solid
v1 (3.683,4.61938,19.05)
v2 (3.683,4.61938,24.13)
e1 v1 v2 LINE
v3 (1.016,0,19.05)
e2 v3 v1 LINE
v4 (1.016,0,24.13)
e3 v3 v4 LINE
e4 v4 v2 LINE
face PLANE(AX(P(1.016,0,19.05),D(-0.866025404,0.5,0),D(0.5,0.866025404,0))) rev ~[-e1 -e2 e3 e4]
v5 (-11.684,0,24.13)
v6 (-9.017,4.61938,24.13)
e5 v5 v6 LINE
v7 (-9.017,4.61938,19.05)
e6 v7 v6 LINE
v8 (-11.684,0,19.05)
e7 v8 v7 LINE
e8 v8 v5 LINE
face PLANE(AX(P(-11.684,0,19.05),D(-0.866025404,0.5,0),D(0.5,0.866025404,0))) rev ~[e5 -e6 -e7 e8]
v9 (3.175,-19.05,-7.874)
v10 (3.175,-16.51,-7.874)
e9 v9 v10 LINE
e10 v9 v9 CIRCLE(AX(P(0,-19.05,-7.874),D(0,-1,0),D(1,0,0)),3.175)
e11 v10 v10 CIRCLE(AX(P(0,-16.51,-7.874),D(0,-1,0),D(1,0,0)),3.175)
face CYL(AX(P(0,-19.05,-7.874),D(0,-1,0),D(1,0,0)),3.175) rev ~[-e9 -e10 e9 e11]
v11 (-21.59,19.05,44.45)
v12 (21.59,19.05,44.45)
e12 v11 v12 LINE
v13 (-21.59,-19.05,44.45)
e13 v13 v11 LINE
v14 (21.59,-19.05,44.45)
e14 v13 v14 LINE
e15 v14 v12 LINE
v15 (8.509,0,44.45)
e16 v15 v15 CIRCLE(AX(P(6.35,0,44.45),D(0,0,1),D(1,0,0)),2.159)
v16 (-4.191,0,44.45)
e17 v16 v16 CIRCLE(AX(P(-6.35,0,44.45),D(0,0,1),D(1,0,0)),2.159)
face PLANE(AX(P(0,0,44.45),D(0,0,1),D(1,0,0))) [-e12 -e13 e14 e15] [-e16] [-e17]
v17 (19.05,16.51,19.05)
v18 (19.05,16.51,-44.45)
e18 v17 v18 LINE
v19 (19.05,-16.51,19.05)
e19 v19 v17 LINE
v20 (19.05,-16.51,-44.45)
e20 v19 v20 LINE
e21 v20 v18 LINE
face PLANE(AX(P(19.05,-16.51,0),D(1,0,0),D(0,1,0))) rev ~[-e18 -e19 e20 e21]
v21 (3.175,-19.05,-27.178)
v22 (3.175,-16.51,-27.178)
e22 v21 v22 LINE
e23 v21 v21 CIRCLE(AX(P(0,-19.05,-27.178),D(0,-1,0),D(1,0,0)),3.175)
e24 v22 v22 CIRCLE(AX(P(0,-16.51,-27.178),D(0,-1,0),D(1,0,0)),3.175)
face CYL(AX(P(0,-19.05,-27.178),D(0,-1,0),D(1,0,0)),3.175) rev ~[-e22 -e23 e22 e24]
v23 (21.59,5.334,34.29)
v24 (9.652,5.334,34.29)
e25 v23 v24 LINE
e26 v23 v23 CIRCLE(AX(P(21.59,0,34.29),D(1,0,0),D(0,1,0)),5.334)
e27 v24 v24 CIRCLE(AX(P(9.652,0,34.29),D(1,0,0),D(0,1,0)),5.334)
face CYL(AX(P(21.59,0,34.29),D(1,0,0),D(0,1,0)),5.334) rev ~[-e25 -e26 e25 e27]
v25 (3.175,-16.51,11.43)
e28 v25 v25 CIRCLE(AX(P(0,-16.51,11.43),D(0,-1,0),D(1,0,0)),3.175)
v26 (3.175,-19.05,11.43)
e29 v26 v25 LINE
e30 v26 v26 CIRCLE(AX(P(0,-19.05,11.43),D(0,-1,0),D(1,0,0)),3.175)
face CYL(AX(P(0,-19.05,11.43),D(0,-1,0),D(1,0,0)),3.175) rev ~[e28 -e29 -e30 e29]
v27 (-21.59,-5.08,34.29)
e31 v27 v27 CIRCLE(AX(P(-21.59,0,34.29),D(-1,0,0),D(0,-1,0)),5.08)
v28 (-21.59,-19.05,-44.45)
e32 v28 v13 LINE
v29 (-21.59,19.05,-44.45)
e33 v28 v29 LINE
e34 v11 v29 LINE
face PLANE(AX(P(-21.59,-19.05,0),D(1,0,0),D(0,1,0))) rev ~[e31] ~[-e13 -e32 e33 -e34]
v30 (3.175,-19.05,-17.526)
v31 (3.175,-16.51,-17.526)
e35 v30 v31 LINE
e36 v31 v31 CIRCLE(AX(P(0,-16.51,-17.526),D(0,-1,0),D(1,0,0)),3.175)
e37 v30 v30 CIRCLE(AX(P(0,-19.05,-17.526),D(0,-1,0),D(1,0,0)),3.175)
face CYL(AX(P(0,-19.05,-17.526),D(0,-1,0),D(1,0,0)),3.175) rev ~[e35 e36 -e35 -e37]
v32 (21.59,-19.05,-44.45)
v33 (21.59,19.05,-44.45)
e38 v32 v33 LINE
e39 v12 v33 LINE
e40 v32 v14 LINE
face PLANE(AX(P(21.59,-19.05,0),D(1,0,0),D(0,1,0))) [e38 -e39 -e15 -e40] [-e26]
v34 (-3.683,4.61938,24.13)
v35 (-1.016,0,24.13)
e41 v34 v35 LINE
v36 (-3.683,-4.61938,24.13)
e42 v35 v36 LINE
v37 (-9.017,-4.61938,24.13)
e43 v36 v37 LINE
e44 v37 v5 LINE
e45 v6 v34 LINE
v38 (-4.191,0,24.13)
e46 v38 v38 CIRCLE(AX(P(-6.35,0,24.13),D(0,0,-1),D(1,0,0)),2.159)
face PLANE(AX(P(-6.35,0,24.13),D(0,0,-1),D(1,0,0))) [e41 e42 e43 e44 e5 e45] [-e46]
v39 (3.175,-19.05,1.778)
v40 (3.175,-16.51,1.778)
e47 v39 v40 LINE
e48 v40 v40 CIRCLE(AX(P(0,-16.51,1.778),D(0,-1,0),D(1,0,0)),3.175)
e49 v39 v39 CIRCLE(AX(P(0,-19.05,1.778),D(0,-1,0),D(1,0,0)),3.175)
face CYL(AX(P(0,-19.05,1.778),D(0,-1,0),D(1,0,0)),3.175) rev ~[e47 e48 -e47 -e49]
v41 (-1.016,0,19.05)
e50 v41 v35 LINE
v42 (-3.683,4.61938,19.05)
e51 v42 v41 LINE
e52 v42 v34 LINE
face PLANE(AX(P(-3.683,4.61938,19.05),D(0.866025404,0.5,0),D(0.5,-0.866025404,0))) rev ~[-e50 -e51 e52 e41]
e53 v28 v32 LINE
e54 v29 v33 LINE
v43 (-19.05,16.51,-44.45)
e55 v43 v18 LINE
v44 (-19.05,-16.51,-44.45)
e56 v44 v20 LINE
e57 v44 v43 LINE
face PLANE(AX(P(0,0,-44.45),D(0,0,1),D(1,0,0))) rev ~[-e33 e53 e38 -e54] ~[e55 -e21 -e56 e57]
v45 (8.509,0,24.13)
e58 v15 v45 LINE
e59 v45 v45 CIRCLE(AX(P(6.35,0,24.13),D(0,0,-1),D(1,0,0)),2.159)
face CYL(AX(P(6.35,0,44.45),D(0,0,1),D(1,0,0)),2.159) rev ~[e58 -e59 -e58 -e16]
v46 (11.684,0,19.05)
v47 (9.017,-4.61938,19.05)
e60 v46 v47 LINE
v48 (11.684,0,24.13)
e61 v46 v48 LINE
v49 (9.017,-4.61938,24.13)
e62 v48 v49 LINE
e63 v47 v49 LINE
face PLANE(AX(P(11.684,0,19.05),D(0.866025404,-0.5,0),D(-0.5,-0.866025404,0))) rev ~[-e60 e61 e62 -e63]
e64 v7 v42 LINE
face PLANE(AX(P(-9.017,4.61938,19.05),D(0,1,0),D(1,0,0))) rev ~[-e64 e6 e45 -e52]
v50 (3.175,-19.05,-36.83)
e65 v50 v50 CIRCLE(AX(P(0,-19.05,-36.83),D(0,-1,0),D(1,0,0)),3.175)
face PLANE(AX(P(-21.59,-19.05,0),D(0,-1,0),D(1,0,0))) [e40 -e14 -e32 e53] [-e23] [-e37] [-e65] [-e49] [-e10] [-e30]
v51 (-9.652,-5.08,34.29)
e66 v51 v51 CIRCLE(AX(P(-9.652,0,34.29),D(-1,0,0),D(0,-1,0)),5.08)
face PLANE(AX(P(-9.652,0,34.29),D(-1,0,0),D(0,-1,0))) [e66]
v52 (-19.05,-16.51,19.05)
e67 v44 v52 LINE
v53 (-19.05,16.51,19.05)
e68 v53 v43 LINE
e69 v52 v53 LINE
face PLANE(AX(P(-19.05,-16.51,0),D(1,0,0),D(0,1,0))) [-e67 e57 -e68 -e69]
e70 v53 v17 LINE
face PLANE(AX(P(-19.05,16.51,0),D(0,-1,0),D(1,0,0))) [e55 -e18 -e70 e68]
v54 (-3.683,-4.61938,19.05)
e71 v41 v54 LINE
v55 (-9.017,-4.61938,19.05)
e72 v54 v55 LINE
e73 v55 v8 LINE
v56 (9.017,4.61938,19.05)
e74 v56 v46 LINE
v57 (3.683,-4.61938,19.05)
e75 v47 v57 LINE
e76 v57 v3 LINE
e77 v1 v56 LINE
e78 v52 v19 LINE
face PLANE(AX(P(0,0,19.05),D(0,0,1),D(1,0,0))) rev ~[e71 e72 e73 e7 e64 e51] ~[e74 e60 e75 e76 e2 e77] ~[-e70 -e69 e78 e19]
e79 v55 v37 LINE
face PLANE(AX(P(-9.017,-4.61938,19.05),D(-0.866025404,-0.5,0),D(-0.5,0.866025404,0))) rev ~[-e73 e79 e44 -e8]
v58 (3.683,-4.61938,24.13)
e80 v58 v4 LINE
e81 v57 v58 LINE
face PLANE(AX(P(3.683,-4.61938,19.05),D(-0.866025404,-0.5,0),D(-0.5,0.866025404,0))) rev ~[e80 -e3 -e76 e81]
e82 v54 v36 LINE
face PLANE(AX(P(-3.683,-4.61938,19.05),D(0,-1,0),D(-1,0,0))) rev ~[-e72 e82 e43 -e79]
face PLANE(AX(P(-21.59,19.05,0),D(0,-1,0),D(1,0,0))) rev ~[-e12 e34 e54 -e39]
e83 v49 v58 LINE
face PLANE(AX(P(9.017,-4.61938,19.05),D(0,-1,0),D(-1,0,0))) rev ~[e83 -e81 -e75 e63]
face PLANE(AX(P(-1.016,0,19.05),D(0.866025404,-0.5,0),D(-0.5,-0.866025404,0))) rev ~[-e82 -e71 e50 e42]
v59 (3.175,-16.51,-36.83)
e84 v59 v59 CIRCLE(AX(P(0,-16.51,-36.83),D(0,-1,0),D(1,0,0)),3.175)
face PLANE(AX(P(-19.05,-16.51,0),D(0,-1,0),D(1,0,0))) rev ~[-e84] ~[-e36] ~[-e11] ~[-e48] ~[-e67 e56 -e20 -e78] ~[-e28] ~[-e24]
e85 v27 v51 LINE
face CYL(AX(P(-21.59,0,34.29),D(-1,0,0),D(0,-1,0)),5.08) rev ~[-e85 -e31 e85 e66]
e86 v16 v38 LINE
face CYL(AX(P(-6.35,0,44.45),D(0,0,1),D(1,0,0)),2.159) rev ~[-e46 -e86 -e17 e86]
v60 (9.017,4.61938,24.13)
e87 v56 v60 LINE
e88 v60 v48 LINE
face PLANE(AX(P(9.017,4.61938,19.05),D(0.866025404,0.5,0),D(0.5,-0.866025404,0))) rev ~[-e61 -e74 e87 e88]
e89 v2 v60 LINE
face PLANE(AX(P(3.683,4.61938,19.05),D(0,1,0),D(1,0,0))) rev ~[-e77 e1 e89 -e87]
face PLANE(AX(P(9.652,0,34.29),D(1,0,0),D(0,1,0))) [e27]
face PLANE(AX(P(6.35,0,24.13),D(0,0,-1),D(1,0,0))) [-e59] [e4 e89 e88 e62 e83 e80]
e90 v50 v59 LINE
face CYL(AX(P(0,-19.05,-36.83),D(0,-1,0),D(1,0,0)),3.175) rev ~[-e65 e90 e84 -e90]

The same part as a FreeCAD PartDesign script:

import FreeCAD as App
import Part
import Sketcher
Q = App.Units.Quantity


def add_polygon(sketch, points):
    """Adds a closed chain of lines whose ends are joined by coincident constraints."""
    first, n = sketch.GeometryCount, len(points)
    for a, b in zip(points, points[1:] + points[:1]):
        sketch.addGeometry(Part.LineSegment(App.Vector(*a, 0), App.Vector(*b, 0)), False)
    for i in range(n):
        sketch.addConstraint(Sketcher.Constraint("Coincident", first + i, 2, first + (i + 1) % n, 1))

doc = App.newDocument("Part")
body = doc.addObject("PartDesign::Body", "Body")

# Sketch on XY plane
sketch1 = body.newObject("Sketcher::SketchObject", "Sketch")
sketch1.AttachmentSupport = (doc.getObject("XY_Plane"), [""])
sketch1.MapMode = "FlatFace"
add_polygon(sketch1, [(-22, 19), (-22, -19), (22, -19), (22, 19)])  # lines 0-3
add_polygon(sketch1, [(19, -17), (-19, -17), (-19, 17), (19, 17)])  # lines 4-7
sketch1.addConstraint([
    Sketcher.Constraint("Vertical", 0),
    Sketcher.Constraint("Horizontal", 1),
    Sketcher.Constraint("Vertical", 2),
    Sketcher.Constraint("Horizontal", 3),
    Sketcher.Constraint("Horizontal", 4),
    Sketcher.Constraint("Vertical", 5),
    Sketcher.Constraint("Horizontal", 6),
    Sketcher.Constraint("Vertical", 7),
    Sketcher.Constraint("Symmetric", 0, 2, 2, 2, -1, 1),
    Sketcher.Constraint("Symmetric", 4, 2, 6, 2, -1, 1),
    Sketcher.Constraint("Equal", 6, 0),
    Sketcher.Constraint("DistanceX", 1, 1, 1, 2, Q("1.7 in")),
    Sketcher.Constraint("DistanceX", 4, 2, 4, 1, Q("1.5 in")),
    Sketcher.Constraint("DistanceY", 5, 1, 5, 2, Q("1.3 in")),
])
pad1 = body.newObject("PartDesign::Pad", "Pad")
pad1.Profile = sketch1
pad1.Length = Q("3.5 in")
pad1.Midplane = True

# Sketch on XY plane
sketch2 = body.newObject("Sketcher::SketchObject", "Sketch001")
sketch2.AttachmentSupport = (doc.getObject("XY_Plane"), [""])
sketch2.MapMode = "FlatFace"
sketch2.AttachmentOffset = App.Placement(App.Vector(0, 0, 1.75 * 25.4), App.Rotation())
add_polygon(sketch2, [(-19.1, 16.5), (-19.1, -16.5), (19.1, -16.5), (19.1, 16.5)])  # lines 0-3
sketch2.addGeometry(Part.Circle(App.Vector(-6.3, 0, 0), App.Vector(0, 0, 1), 2.2), False)  # 4
sketch2.addGeometry(Part.Circle(App.Vector(6.3, 0, 0), App.Vector(0, 0, 1), 2.2), False)  # 5
sketch2.addConstraint([
    Sketcher.Constraint("Vertical", 0),
    Sketcher.Constraint("Horizontal", 1),
    Sketcher.Constraint("Vertical", 2),
    Sketcher.Constraint("Horizontal", 3),
    Sketcher.Constraint("Equal", 4, 5),
    Sketcher.Constraint("Symmetric", 4, 3, 5, 3, -1, 1),
    Sketcher.Constraint("Symmetric", 0, 2, 2, 2, -1, 1),
    Sketcher.Constraint("PointOnObject", 4, 3, -1),
    Sketcher.Constraint("Diameter", 4, Q("0.17 in")),
    Sketcher.Constraint("DistanceX", 1, 1, 1, 2, Q("1.5 in")),
    Sketcher.Constraint("DistanceY", 0, 2, 0, 1, Q("1.3 in")),
    Sketcher.Constraint("DistanceX", 0, 2, 5, 3, Q("1 in")),
])
pad2 = body.newObject("PartDesign::Pad", "Pad001")
pad2.Profile = sketch2
pad2.Length = Q("1 in")
pad2.Reversed = True

# Sketch on XY plane
sketch3 = body.newObject("Sketcher::SketchObject", "Sketch002")
sketch3.AttachmentSupport = (doc.getObject("XY_Plane"), [""])
sketch3.MapMode = "FlatFace"
sketch3.AttachmentOffset = App.Placement(App.Vector(0, 0, 0.75 * 25.4), App.Rotation())
add_polygon(sketch3, [(9, -4.6), (3.7, -4.6), (1, 0), (3.7, 4.6), (9, 4.6), (11.7, 0)])  # lines 0-5
sketch3.addGeometry(Part.Circle(App.Vector(6.3, 0, 0), App.Vector(0, 0, 1), 2.2), False)  # 6
add_polygon(sketch3, [(-3.7, -4.6), (-9, -4.6), (-11.7, 0), (-9, 4.6), (-3.7, 4.6), (-1, 0)])  # lines 7-12
sketch3.addGeometry(Part.Circle(App.Vector(-6.3, 0, 0), App.Vector(0, 0, 1), 2.2), False)  # 13
sketch3.addConstraint([
    Sketcher.Constraint("Horizontal", 0),
    Sketcher.Constraint("Horizontal", 3),
    Sketcher.Constraint("Horizontal", 7),
    Sketcher.Constraint("Horizontal", 10),
    Sketcher.Constraint("Equal", 6, 13),
    Sketcher.Constraint("Symmetric", 6, 3, 13, 3, -1, 1),
    Sketcher.Constraint("Symmetric", 3, 2, 7, 2, -1, 1),
    Sketcher.Constraint("Symmetric", 4, 2, 8, 2, -1, 1),
    Sketcher.Constraint("Symmetric", 5, 2, 9, 2, -1, 1),
    Sketcher.Constraint("Symmetric", 1, 2, 11, 2, -1, 1),
    Sketcher.Constraint("Symmetric", 5, 2, 7, 2, -2),
    Sketcher.Constraint("PointOnObject", 6, 3, -1),
    Sketcher.Constraint("PointOnObject", 1, 2, -1),
    Sketcher.Constraint("PointOnObject", 4, 2, -1),
    Sketcher.Constraint("Parallel", 1, 4),
    Sketcher.Constraint("Parallel", 2, 5),
    Sketcher.Constraint("Parallel", 8, 11),
    Sketcher.Constraint("Parallel", 9, 12),
    Sketcher.Constraint("Diameter", 6, Q("0.17 in")),
    Sketcher.Constraint("Angle", 1, Q("120 deg")),
    Sketcher.Constraint("DistanceX", 0, 2, 0, 1, Q("0.21 in")),
    Sketcher.Constraint("DistanceX", 13, 3, 6, 3, Q("0.5 in")),
    Sketcher.Constraint("DistanceX", 7, 2, 0, 2, Q("0.5 in")),
    Sketcher.Constraint("Distance", 1, Q("0.21 in")),
])
pocket1 = body.newObject("PartDesign::Pocket", "Pocket")
pocket1.Profile = sketch3
pocket1.Length = Q("0.2 in")
pocket1.Reversed = True

# Sketch on XZ plane
sketch4 = body.newObject("Sketcher::SketchObject", "Sketch003")
sketch4.AttachmentSupport = (doc.getObject("XZ_Plane"), [""])
sketch4.MapMode = "FlatFace"
sketch4.AttachmentOffset = App.Placement(App.Vector(0, 0, 0.75 * 25.4), App.Rotation())
sketch4.addGeometry([
    Part.Circle(App.Vector(0, 11.4, 0), App.Vector(0, 0, 1), 3.2),  # 0
    Part.Circle(App.Vector(0, 1.8, 0), App.Vector(0, 0, 1), 3.2),  # 1
    Part.Circle(App.Vector(0, -7.9, 0), App.Vector(0, 0, 1), 3.2),  # 2
    Part.Circle(App.Vector(0, -17.5, 0), App.Vector(0, 0, 1), 3.2),  # 3
    Part.Circle(App.Vector(0, -27.2, 0), App.Vector(0, 0, 1), 3.2),  # 4
    Part.Circle(App.Vector(0, -36.8, 0), App.Vector(0, 0, 1), 3.2),  # 5
], False)
sketch4.addConstraint([
    Sketcher.Constraint("Equal", 0, 1),
    Sketcher.Constraint("Equal", 1, 2),
    Sketcher.Constraint("Equal", 2, 3),
    Sketcher.Constraint("Equal", 3, 4),
    Sketcher.Constraint("Equal", 4, 5),
    Sketcher.Constraint("PointOnObject", 0, 3, -2),
    Sketcher.Constraint("PointOnObject", 1, 3, -2),
    Sketcher.Constraint("PointOnObject", 2, 3, -2),
    Sketcher.Constraint("PointOnObject", 3, 3, -2),
    Sketcher.Constraint("PointOnObject", 4, 3, -2),
    Sketcher.Constraint("PointOnObject", 5, 3, -2),
    Sketcher.Constraint("Diameter", 0, Q("0.25 in")),
    Sketcher.Constraint("DistanceY", 5, 3, 0, 3, Q("1.9 in")),
    Sketcher.Constraint("DistanceY", -1, 1, 0, 3, Q("0.45 in")),
    Sketcher.Constraint("DistanceY", -1, 1, 1, 3, Q("0.07 in")),
    Sketcher.Constraint("DistanceY", 2, 3, -1, 1, Q("0.31 in")),
    Sketcher.Constraint("DistanceY", 3, 3, -1, 1, Q("0.69 in")),
    Sketcher.Constraint("DistanceY", 4, 3, -1, 1, Q("1.07 in")),
])
pocket2 = body.newObject("PartDesign::Pocket", "Pocket001")
pocket2.Profile = sketch4
pocket2.Length = Q("0.64 in")

# Sketch on YZ plane
sketch5 = body.newObject("Sketcher::SketchObject", "Sketch004")
sketch5.AttachmentSupport = (doc.getObject("YZ_Plane"), [""])
sketch5.MapMode = "FlatFace"
sketch5.AttachmentOffset = App.Placement(App.Vector(0, 0, -0.85 * 25.4), App.Rotation())
sketch5.addGeometry(Part.Circle(App.Vector(0, 34, 0), App.Vector(0, 0, 1), 5), False)
sketch5.addConstraint([
    Sketcher.Constraint("PointOnObject", 0, 3, -2),
    Sketcher.Constraint("Diameter", 0, Q("0.4 in")),
    Sketcher.Constraint("DistanceY", -1, 1, 0, 3, Q("1.35 in")),
])
pocket3 = body.newObject("PartDesign::Pocket", "Pocket002")
pocket3.Profile = sketch5
pocket3.Length = Q("0.47 in")
pocket3.Reversed = True

# Sketch on YZ plane
sketch6 = body.newObject("Sketcher::SketchObject", "Sketch005")
sketch6.AttachmentSupport = (doc.getObject("YZ_Plane"), [""])
sketch6.MapMode = "FlatFace"
sketch6.AttachmentOffset = App.Placement(App.Vector(0, 0, 0.85 * 25.4), App.Rotation())
sketch6.addGeometry(Part.Circle(App.Vector(0, 34, 0), App.Vector(0, 0, 1), 5), False)
sketch6.addConstraint([
    Sketcher.Constraint("PointOnObject", 0, 3, -2),
    Sketcher.Constraint("Diameter", 0, Q("0.42 in")),
    Sketcher.Constraint("DistanceY", -1, 1, 0, 3, Q("1.35 in")),
])
pocket4 = body.newObject("PartDesign::Pocket", "Pocket003")
pocket4.Profile = sketch6
pocket4.Length = Q("0.47 in")

doc.recompute()
